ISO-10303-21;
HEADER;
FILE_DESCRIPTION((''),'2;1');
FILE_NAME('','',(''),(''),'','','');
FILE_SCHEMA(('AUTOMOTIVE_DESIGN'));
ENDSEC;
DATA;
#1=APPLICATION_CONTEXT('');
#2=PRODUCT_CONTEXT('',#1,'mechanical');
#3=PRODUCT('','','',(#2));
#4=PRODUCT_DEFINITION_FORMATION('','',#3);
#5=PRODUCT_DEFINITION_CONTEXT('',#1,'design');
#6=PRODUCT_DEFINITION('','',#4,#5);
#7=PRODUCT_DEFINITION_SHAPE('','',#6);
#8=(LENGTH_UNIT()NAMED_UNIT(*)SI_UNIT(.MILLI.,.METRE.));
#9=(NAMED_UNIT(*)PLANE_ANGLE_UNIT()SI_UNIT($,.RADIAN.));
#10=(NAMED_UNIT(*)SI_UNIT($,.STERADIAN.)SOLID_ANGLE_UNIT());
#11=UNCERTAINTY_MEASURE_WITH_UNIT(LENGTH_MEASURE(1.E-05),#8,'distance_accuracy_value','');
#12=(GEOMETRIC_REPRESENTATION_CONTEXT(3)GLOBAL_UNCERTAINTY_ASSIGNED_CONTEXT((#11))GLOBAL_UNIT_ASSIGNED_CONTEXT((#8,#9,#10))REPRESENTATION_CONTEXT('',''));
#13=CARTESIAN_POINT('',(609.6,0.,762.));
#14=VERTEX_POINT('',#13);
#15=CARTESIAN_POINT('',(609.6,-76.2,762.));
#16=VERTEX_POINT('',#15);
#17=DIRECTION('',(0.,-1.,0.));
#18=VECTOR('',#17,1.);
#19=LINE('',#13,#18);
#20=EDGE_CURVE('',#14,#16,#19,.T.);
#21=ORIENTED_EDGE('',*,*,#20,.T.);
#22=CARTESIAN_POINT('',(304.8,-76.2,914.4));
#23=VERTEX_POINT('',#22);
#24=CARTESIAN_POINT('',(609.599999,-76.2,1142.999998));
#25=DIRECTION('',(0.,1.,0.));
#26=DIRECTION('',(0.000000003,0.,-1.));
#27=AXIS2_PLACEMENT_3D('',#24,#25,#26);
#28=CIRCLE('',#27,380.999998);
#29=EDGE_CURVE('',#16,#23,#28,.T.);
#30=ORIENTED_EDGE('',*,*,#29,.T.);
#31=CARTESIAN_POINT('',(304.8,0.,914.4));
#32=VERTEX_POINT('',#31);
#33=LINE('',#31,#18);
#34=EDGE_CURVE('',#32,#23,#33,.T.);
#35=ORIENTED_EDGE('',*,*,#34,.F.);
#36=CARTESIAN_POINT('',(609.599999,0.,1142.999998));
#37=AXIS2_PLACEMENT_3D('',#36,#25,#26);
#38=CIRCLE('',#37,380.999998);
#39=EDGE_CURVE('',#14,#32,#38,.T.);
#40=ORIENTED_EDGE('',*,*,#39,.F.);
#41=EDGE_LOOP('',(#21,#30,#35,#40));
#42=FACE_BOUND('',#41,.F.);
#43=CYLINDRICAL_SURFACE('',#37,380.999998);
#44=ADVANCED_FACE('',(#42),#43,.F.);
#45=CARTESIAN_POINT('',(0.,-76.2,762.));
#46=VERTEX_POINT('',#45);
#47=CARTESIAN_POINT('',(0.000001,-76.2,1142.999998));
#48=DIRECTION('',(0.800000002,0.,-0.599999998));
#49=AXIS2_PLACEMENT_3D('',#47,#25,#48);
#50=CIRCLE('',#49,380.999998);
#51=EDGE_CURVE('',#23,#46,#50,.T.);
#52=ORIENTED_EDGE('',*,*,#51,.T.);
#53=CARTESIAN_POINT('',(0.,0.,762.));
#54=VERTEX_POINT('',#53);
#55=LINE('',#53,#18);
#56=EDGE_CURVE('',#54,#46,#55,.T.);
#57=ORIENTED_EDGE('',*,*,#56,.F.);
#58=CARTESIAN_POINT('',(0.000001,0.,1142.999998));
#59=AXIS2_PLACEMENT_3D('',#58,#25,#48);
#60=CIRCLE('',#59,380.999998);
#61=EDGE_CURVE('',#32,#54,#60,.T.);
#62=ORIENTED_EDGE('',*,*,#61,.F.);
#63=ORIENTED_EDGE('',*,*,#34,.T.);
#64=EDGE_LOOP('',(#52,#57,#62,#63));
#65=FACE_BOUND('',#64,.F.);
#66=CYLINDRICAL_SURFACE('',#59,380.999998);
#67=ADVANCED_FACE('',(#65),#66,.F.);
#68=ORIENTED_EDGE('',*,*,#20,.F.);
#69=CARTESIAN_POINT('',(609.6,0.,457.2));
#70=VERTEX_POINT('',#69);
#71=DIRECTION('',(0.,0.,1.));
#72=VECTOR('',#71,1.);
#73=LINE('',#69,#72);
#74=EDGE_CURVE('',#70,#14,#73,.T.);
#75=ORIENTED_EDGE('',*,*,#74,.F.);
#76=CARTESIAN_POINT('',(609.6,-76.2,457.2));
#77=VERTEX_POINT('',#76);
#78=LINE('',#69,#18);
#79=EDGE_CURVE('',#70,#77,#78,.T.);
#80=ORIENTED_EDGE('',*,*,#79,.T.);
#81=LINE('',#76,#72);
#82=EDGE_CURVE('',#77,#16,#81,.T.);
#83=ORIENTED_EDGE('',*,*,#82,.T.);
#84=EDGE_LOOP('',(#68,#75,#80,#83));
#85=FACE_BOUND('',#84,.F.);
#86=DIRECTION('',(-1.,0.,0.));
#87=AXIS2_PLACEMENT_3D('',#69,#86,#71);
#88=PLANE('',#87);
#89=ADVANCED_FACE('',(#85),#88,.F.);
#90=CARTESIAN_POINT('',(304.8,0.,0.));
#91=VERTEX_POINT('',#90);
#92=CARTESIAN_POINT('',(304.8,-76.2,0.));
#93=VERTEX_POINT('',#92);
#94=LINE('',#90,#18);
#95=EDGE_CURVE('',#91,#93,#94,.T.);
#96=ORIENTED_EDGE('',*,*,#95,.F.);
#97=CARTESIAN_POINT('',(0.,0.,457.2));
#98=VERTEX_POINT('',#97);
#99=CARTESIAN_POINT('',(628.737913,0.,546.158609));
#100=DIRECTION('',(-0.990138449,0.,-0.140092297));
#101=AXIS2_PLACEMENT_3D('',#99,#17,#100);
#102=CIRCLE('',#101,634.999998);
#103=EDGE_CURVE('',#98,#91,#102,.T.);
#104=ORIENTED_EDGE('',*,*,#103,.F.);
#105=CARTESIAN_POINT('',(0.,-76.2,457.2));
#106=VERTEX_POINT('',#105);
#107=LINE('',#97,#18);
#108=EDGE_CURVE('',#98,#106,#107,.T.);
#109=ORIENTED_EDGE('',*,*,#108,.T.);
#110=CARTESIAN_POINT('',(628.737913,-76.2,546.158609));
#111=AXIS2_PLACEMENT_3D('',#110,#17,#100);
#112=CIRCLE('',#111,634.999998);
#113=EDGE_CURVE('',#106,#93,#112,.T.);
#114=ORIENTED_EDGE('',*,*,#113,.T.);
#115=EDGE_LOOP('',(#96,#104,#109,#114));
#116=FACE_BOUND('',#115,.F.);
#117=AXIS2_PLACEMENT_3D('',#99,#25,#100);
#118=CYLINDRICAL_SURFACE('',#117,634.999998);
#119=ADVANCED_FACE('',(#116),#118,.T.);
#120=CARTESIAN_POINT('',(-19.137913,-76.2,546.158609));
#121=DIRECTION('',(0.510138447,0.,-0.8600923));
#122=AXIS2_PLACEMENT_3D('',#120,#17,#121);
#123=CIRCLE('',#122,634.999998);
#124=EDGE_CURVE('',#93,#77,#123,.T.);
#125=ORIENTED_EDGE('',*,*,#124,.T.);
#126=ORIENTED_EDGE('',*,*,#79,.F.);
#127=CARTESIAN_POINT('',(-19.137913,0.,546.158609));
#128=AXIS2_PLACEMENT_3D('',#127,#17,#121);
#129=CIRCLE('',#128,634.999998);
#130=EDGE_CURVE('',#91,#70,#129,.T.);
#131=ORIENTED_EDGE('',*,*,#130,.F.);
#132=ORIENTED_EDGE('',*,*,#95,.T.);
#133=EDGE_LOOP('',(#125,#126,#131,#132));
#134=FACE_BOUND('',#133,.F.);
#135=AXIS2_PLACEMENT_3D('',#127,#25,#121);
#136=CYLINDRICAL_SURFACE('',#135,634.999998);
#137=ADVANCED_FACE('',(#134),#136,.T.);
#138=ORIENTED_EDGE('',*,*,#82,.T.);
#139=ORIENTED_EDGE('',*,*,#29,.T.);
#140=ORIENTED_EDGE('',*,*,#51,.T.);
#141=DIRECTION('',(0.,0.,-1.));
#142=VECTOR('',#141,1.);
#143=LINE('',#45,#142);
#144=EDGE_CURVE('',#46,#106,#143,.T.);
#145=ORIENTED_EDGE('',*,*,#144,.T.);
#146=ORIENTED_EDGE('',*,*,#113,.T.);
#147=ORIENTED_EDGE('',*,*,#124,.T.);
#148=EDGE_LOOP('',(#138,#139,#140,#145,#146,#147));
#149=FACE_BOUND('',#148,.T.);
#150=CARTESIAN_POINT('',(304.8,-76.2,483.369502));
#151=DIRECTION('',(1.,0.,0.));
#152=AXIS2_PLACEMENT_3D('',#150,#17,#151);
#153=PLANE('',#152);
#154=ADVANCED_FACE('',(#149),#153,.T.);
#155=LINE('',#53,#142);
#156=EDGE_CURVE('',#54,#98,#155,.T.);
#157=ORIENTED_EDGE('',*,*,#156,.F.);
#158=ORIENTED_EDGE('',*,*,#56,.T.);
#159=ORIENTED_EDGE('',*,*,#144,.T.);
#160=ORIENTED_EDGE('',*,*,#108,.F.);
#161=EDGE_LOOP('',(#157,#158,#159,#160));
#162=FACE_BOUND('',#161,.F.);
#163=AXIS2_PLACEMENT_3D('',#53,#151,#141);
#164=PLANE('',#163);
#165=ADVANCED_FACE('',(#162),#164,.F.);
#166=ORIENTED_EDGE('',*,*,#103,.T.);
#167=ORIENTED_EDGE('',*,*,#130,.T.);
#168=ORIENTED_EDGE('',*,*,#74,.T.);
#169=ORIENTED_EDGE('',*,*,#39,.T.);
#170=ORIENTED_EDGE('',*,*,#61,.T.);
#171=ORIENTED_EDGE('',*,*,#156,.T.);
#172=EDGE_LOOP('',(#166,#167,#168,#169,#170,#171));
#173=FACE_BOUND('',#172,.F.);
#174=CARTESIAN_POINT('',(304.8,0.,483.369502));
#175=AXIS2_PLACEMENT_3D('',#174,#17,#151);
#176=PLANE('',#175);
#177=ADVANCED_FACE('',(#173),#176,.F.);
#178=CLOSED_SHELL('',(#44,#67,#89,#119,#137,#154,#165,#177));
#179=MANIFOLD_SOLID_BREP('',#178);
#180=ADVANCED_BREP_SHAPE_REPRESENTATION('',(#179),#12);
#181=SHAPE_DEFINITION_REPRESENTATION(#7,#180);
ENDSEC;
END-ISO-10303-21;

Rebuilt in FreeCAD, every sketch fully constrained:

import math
import FreeCAD as App
import Part
import Sketcher
from FreeCAD import Vector
Q = App.Units.Quantity

doc = App.newDocument("Part")
body = doc.addObject("PartDesign::Body", "Body")

sketch1 = body.newObject("Sketcher::SketchObject", "Sketch")
sketch1.AttachmentSupport = (doc.getObject("XZ_Plane"), [""])
sketch1.MapMode = "FlatFace"
sketch1.addGeometry([
    Part.ArcOfCircle(Part.Circle(Vector(0, 1143, 0), Vector(0, 0, 1), 381), math.radians(-90), math.radians(-37)),
    Part.LineSegment(Vector(0, 762, 0), Vector(0, 457, 0)),
    Part.ArcOfCircle(Part.Circle(Vector(629, 546, 0), Vector(0, 0, 1), 635), math.radians(-172), math.radians(-121)),
    Part.ArcOfCircle(Part.Circle(Vector(-19, 546, 0), Vector(0, 0, 1), 635), math.radians(-59), math.radians(-8)),
    Part.LineSegment(Vector(610, 457, 0), Vector(610, 762, 0)),
    Part.ArcOfCircle(Part.Circle(Vector(610, 1143, 0), Vector(0, 0, 1), 381), math.radians(-143), math.radians(-90)),
], False)
sketch1.addConstraint([
    Sketcher.Constraint("Coincident", 0, 1, 1, 1),
    Sketcher.Constraint("Coincident", 1, 2, 2, 1),
    Sketcher.Constraint("Coincident", 2, 2, 3, 1),
    Sketcher.Constraint("Coincident", 3, 2, 4, 1),
    Sketcher.Constraint("Coincident", 4, 2, 5, 2),
    Sketcher.Constraint("Coincident", 5, 1, 0, 2),
    Sketcher.Constraint("Vertical", 1),
    Sketcher.Constraint("Vertical", 4),
    Sketcher.Constraint("Equal", 2, 3),
    Sketcher.Constraint("Equal", 0, 5),
    Sketcher.Constraint("PointOnObject", 0, 3, -2),
    Sketcher.Constraint("PointOnObject", 1, 2, -2),
    Sketcher.Constraint("PointOnObject", 2, 2, -1),
    Sketcher.Constraint("Horizontal", 2, 3, 3, 3),
    Sketcher.Constraint("Horizontal", 0, 3, 5, 3),
    Sketcher.Constraint("Horizontal", 1, 2, 3, 2),
    Sketcher.Constraint("Vertical", 5, 3, 3, 2),
    Sketcher.Constraint("Radius", 0, Q("14.9999999 in")),
    Sketcher.Constraint("Radius", 2, Q("24.9999999 in")),
    Sketcher.Constraint("DistanceY", 1, 2, 1, 1, Q("12 in")),
    Sketcher.Constraint("DistanceY", -1, 1, 0, 3, Q("44.9999999 in")),
    Sketcher.Constraint("DistanceX", -1, 1, 5, 3, Q("24 in")),
])
pad1 = body.newObject("PartDesign::Pad", "Pad")
pad1.Profile = sketch1
pad1.Length = Q("3 in")

doc.recompute()
